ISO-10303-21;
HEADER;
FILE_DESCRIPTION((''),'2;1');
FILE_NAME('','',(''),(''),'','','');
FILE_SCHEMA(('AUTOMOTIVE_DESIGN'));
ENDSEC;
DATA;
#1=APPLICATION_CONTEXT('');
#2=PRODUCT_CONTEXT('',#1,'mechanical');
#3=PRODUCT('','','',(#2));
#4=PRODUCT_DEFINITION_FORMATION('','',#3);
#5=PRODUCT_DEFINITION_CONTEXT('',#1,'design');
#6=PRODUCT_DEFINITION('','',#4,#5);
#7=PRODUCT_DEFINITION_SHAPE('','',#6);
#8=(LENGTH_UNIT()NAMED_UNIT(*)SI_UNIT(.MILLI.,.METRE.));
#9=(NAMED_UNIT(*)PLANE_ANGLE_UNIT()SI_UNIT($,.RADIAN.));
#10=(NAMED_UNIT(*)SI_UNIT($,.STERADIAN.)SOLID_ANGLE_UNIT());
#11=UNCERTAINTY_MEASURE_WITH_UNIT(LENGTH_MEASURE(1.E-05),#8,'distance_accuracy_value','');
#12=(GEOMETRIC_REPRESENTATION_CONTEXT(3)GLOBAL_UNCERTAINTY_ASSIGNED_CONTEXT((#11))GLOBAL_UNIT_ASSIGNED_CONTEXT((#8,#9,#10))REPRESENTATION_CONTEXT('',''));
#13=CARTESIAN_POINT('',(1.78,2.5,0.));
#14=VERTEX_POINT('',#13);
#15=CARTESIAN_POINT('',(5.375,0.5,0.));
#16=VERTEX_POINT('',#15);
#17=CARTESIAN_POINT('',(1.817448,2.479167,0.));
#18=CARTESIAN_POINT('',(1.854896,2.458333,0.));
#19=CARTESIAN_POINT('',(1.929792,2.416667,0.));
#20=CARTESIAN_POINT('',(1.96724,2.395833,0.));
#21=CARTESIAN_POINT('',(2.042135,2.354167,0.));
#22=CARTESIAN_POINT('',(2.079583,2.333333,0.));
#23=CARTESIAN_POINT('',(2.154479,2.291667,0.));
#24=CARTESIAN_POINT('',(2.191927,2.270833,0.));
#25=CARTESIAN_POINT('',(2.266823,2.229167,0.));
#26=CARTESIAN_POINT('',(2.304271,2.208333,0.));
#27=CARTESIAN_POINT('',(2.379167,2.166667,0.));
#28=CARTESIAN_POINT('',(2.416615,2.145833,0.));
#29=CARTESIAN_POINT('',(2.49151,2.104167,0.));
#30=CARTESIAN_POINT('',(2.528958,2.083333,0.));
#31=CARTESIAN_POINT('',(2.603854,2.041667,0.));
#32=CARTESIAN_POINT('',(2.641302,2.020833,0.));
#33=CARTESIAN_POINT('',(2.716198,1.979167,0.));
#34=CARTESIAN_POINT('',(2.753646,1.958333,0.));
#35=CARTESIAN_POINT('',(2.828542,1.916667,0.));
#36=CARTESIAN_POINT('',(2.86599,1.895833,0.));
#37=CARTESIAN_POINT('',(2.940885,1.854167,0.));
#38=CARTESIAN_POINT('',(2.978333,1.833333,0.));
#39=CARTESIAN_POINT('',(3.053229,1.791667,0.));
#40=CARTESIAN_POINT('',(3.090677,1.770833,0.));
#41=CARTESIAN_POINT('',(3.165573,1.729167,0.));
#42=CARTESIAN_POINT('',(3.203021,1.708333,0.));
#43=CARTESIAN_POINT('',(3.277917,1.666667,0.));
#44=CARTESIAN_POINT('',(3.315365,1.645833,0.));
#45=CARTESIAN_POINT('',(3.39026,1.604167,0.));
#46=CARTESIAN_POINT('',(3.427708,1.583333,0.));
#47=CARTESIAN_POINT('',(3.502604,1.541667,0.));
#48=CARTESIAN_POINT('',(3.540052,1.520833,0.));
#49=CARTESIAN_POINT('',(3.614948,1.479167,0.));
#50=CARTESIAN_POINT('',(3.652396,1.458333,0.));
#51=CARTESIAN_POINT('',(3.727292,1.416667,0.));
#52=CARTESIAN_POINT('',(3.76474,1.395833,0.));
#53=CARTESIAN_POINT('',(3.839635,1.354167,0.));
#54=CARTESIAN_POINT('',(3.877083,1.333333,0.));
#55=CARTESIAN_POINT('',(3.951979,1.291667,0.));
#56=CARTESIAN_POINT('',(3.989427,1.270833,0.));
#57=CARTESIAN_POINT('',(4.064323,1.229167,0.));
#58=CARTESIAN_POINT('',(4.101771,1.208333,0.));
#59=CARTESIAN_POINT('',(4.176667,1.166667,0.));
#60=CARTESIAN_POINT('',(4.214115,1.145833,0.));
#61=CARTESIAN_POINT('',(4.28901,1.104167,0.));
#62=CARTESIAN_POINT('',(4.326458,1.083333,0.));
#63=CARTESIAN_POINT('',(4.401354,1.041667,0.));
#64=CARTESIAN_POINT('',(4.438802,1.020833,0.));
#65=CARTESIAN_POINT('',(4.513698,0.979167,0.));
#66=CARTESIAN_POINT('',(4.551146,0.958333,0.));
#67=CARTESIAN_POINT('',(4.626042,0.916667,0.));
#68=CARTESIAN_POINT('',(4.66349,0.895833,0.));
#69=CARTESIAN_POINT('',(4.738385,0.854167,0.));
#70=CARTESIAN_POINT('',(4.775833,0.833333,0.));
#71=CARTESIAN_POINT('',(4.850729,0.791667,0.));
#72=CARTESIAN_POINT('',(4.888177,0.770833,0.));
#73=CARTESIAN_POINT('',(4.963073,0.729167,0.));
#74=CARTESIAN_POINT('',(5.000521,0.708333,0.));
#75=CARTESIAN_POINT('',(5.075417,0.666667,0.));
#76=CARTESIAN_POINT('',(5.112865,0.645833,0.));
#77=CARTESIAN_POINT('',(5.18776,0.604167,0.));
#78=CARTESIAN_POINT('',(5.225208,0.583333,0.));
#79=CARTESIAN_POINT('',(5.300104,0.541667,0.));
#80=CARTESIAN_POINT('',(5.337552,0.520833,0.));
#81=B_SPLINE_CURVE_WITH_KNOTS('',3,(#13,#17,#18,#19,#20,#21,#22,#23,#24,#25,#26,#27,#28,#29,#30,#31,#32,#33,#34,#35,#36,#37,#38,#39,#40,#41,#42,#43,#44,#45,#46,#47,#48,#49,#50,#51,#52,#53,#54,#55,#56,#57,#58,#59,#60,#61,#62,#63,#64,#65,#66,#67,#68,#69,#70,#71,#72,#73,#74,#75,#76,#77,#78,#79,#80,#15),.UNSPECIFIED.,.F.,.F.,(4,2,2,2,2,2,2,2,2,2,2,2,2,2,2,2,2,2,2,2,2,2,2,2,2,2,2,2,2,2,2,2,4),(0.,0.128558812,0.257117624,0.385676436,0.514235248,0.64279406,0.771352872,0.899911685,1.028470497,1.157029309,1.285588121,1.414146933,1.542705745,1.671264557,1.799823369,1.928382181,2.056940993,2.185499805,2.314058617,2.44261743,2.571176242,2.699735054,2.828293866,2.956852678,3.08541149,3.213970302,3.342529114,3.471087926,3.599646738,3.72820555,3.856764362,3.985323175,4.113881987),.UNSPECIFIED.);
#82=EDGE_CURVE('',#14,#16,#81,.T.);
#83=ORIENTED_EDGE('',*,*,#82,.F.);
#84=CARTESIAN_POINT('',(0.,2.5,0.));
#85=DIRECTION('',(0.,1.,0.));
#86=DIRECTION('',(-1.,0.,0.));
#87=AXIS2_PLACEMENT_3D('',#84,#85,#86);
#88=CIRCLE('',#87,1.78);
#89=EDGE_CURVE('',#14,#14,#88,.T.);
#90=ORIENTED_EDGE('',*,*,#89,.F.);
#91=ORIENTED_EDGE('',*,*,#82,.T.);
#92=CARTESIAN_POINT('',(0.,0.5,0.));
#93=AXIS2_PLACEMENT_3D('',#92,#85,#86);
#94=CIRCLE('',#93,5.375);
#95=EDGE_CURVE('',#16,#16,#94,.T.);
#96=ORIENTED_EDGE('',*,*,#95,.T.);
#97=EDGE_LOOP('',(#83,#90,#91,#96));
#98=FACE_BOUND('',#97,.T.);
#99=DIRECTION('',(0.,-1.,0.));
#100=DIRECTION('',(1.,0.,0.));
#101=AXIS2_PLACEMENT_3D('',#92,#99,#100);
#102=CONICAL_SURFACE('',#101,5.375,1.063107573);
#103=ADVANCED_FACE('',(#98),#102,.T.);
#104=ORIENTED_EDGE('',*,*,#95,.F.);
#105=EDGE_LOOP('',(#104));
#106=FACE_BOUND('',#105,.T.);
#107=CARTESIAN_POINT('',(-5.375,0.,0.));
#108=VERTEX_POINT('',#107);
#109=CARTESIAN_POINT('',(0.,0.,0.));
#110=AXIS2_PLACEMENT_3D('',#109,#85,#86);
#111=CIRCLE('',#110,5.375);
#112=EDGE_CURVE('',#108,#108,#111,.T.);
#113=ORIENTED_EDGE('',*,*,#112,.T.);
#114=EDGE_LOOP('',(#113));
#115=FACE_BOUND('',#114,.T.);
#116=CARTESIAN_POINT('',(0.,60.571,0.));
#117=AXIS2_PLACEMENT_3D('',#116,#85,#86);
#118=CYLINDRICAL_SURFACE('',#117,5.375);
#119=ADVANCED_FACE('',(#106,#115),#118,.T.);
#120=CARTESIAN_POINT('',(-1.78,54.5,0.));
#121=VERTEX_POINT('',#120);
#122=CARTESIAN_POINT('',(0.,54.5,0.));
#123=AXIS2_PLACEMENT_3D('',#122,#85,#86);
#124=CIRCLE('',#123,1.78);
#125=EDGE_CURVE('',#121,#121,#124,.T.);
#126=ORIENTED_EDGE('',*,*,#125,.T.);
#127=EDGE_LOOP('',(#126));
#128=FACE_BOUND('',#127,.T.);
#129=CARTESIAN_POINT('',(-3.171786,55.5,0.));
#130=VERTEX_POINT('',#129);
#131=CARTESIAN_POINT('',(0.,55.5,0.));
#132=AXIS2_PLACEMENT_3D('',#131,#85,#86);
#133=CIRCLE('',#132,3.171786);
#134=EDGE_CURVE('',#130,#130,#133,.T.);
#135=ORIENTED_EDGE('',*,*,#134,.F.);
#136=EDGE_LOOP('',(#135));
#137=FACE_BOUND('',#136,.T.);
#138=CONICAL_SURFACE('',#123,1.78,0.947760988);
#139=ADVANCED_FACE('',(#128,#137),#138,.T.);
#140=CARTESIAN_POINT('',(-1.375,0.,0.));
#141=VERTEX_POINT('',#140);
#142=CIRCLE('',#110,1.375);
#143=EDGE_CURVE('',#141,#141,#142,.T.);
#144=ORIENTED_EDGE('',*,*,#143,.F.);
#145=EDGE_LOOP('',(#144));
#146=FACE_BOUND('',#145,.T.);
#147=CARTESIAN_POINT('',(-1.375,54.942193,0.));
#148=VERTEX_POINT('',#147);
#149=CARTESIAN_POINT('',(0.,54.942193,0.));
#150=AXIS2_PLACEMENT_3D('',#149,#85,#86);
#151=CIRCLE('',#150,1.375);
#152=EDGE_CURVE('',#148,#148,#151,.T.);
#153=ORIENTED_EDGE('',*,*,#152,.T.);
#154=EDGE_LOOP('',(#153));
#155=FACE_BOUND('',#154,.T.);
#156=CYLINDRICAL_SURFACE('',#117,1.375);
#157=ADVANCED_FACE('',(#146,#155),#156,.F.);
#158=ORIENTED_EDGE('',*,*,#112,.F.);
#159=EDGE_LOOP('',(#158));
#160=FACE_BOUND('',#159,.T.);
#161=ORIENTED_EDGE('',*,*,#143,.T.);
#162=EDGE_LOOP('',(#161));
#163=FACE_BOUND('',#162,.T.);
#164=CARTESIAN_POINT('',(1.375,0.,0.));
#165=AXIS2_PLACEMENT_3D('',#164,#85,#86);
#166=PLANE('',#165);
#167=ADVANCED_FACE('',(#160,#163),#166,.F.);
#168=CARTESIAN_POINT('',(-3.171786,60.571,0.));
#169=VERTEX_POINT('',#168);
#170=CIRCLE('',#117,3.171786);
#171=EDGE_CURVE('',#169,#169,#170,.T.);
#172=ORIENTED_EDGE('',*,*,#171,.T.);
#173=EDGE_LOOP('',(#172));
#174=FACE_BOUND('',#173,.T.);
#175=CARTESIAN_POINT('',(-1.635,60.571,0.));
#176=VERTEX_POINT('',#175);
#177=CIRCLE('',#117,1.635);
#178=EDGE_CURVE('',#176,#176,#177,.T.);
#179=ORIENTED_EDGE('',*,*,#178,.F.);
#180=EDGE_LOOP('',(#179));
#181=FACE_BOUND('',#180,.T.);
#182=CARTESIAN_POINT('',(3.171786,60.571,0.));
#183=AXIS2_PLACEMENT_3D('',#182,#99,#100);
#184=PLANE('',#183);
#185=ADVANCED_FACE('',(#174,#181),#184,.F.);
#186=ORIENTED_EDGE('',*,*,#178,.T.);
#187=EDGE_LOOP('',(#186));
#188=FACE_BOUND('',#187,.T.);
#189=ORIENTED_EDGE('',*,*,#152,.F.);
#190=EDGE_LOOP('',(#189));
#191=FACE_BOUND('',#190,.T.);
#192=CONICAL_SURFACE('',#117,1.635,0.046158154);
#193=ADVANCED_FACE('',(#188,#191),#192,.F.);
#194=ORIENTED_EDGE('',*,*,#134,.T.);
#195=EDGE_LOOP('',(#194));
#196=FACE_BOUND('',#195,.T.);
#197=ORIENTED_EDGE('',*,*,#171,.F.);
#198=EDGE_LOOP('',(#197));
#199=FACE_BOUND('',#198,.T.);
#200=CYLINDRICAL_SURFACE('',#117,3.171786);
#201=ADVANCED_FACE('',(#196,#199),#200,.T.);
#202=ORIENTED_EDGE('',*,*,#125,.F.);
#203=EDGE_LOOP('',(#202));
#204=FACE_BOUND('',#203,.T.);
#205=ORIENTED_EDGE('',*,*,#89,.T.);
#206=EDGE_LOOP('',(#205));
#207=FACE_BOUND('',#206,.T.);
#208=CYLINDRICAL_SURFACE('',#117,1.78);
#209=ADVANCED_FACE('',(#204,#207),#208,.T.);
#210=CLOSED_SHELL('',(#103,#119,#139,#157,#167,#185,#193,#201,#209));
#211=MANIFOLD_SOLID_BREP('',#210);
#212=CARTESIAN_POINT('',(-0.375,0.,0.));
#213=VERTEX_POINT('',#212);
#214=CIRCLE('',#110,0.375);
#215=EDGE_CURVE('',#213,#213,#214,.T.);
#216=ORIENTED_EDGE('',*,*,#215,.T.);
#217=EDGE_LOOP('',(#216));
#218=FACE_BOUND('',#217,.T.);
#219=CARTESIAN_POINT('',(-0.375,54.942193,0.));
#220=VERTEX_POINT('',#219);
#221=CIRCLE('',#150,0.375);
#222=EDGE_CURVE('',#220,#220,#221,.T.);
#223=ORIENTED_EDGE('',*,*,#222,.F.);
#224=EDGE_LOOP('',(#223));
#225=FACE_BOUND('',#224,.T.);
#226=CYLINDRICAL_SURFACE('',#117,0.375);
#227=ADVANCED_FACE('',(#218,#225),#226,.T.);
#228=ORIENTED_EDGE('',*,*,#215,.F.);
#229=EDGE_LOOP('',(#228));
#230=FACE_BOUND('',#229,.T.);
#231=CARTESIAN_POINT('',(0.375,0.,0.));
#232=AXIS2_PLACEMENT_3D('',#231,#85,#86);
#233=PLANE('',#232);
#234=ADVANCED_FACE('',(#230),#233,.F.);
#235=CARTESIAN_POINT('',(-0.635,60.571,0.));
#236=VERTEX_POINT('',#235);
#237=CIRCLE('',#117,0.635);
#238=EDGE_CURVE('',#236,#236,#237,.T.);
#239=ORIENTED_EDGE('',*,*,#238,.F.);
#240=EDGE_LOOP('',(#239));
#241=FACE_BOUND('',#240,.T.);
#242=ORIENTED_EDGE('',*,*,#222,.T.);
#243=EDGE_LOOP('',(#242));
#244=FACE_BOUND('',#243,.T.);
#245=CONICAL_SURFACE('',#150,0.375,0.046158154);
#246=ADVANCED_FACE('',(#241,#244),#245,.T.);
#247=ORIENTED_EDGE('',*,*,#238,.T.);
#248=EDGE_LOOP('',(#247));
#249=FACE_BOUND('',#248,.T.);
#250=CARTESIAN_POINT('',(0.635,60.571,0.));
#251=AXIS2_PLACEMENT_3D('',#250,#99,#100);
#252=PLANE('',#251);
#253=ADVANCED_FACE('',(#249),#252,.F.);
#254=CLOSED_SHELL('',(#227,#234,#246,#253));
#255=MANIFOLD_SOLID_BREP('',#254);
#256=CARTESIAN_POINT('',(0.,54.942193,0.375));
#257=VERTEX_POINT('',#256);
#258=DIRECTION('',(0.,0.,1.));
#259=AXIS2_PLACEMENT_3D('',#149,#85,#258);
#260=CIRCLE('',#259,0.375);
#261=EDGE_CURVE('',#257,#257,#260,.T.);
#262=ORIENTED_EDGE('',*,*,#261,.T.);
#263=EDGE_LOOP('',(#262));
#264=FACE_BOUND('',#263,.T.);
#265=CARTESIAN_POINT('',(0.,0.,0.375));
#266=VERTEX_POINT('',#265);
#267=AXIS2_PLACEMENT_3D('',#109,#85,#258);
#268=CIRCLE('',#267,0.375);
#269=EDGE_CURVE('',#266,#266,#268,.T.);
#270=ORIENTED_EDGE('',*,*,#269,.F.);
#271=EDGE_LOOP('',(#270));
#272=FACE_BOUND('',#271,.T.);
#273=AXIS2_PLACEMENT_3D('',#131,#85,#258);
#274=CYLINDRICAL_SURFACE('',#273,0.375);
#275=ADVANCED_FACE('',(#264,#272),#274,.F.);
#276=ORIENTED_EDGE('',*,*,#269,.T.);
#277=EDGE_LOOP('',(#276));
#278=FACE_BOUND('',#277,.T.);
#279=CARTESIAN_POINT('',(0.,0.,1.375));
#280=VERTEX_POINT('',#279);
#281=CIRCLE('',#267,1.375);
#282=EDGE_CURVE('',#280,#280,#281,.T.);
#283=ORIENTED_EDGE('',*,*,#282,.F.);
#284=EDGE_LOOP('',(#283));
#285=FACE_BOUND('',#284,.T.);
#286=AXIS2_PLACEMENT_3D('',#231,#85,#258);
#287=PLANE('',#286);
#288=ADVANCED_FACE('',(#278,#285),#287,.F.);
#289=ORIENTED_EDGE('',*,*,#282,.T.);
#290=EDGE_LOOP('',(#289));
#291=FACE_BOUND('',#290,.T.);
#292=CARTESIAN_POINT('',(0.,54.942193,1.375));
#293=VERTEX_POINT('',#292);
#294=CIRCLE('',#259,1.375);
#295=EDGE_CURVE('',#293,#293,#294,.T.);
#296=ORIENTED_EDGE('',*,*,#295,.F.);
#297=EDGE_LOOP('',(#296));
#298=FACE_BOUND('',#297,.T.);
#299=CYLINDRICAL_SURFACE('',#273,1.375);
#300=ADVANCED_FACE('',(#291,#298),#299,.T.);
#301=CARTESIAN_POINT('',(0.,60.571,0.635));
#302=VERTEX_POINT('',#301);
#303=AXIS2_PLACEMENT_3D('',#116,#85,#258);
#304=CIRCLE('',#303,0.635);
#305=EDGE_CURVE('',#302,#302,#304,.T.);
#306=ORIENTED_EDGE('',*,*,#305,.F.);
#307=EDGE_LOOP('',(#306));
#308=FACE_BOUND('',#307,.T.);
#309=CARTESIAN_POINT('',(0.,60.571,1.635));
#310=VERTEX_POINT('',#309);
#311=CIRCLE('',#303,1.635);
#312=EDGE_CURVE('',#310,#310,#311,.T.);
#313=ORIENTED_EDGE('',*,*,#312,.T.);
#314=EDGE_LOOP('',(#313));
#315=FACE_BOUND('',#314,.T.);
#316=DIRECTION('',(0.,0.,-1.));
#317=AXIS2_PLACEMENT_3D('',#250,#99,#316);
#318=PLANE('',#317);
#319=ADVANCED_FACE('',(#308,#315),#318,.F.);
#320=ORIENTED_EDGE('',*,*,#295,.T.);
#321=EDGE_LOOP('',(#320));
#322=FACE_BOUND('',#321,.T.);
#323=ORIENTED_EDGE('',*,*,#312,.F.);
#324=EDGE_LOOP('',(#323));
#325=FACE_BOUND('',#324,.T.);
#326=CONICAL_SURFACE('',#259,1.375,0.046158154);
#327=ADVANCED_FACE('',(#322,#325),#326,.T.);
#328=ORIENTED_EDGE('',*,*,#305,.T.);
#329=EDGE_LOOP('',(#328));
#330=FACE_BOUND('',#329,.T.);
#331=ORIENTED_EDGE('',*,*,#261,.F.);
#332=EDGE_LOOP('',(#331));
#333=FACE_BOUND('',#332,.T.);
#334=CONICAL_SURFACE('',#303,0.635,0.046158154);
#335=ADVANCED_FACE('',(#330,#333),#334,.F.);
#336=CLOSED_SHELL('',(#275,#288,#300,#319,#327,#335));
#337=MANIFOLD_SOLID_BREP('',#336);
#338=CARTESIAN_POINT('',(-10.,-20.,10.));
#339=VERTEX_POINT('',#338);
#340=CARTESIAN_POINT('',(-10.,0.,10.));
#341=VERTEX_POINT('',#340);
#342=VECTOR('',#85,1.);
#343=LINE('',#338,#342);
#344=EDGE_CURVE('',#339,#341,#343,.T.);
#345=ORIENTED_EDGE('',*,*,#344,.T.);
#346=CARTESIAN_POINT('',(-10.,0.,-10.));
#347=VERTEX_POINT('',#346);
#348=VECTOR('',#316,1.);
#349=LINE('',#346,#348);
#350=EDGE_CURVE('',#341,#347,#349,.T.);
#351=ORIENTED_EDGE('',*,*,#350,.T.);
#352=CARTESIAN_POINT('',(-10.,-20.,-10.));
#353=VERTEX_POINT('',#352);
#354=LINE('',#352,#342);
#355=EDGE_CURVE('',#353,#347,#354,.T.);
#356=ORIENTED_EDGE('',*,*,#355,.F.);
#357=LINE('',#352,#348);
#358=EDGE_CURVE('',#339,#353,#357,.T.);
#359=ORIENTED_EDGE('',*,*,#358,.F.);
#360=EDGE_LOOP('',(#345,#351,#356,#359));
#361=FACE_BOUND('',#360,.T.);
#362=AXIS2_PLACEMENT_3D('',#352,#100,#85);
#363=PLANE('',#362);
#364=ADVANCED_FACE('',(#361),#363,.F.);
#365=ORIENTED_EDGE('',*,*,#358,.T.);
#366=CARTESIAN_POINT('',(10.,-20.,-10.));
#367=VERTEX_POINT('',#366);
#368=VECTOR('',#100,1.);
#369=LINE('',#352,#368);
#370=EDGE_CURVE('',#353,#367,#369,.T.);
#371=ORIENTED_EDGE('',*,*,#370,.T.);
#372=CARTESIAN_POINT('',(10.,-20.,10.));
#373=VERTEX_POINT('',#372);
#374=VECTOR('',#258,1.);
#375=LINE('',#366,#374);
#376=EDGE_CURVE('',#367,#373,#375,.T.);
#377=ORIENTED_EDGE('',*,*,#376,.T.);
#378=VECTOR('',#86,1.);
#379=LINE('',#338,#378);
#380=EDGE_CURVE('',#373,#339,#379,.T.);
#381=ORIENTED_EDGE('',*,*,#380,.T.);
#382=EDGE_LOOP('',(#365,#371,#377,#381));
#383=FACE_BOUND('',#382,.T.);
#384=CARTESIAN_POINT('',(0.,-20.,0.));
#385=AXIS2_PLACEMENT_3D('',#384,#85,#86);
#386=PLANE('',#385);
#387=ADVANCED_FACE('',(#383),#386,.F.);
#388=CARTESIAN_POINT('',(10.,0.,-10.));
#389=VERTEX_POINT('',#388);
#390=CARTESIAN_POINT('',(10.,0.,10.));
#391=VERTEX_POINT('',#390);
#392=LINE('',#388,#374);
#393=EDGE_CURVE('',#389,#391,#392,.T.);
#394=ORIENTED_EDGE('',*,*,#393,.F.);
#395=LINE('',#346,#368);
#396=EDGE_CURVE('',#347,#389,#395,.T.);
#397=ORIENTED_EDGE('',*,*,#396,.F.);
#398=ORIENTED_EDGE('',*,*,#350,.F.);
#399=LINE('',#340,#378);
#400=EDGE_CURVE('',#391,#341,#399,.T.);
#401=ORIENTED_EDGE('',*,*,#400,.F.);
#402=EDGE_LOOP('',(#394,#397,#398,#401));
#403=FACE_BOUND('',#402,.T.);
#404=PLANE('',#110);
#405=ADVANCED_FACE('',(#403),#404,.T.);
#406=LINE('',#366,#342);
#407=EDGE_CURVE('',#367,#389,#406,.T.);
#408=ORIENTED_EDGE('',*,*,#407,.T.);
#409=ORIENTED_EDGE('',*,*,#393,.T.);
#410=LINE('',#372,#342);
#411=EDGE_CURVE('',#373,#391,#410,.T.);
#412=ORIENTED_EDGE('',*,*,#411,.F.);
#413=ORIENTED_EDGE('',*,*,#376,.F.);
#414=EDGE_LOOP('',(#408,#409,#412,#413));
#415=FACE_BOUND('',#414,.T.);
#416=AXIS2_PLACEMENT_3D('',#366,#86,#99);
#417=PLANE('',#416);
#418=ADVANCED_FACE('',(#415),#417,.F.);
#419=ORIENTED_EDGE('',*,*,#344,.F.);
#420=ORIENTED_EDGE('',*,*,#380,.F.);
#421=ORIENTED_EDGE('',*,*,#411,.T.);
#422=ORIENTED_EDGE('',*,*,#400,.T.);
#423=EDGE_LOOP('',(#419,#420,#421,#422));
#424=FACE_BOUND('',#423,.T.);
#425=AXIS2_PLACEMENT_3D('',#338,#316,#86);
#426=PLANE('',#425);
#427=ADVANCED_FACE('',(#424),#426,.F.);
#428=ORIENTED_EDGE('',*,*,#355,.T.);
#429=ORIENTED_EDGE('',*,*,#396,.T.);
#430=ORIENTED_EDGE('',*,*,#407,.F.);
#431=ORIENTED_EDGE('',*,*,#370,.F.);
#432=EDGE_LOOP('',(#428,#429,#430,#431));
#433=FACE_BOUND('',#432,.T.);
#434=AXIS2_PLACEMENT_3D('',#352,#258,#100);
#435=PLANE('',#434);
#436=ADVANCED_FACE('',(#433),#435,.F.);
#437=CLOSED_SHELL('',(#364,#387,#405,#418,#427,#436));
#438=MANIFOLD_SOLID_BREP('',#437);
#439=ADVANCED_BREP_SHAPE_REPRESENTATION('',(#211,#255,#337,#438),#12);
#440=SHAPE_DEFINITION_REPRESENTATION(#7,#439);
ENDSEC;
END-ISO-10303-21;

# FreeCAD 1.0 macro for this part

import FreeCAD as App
import Part
import Sketcher

V = App.Vector
Q = App.Units.Quantity


def add_polygon(sketch, points):
    """Adds a closed chain of lines whose ends are joined by coincident constraints."""
    first, n = sketch.GeometryCount, len(points)
    for a, b in zip(points, points[1:] + points[:1]):
        sketch.addGeometry(Part.LineSegment(App.Vector(*a, 0), App.Vector(*b, 0)), False)
    for i in range(n):
        sketch.addConstraint(Sketcher.Constraint("Coincident", first + i, 2, first + (i + 1) % n, 1))

doc = App.newDocument("Part")
body = doc.addObject("PartDesign::Body", "Body")
body.AllowCompound = True

sketch1 = body.newObject("Sketcher::SketchObject", "Sketch")
sketch1.AttachmentSupport = (doc.getObject("XY_Plane"), [""])
sketch1.MapMode = "FlatFace"
add_polygon(sketch1, [(5.38, 0), (5.38, 0.5), (1.78, 2.5), (1.78, 54.5), (3.17, 55.5), (3.17, 60.57), (1.64, 60.57), (1.38, 54.94), (1.38, 0)])
add_polygon(sketch1, [(0.38, 0), (0.38, 54.94), (0.64, 60.57), (0, 60.57), (0, 0)])
sketch1.addConstraint([
    Sketcher.Constraint("Vertical", 0),
    Sketcher.Constraint("Vertical", 2),
    Sketcher.Constraint("Vertical", 4),
    Sketcher.Constraint("Horizontal", 5),
    Sketcher.Constraint("Vertical", 7),
    Sketcher.Constraint("Horizontal", 8),
    Sketcher.Constraint("Vertical", 9),
    Sketcher.Constraint("Horizontal", 11),
    Sketcher.Constraint("Vertical", 12),
    Sketcher.Constraint("Horizontal", 13),
    Sketcher.Constraint("Coincident", 12, 2, -1, 1),
    Sketcher.Constraint("PointOnObject", 7, 2, -1),
    Sketcher.Constraint("Parallel", 6, 10),
    Sketcher.Constraint("Horizontal", 6, 2, 9, 2),
    Sketcher.Constraint("Horizontal", 5, 2, 10, 2),
    Sketcher.Constraint("DistanceX", 8, 1, 8, 2, Q("4 mm")),
    Sketcher.Constraint("DistanceY", 2, 1, 2, 2, Q("52 mm")),
    Sketcher.Constraint("DistanceY", 0, 1, 0, 2, Q("0.5 mm")),
    Sketcher.Constraint("DistanceY", 0, 2, 1, 2, Q("2 mm")),
    Sketcher.Constraint("DistanceY", 2, 2, 3, 2, Q("1 mm")),
    Sketcher.Constraint("DistanceX", 9, 2, 6, 2, Q("1 mm")),
    Sketcher.Constraint("DistanceX", 11, 2, 11, 1, Q("0.635 mm")),
    Sketcher.Constraint("DistanceX", 13, 1, 13, 2, Q("0.375 mm")),
    Sketcher.Constraint("DistanceY", 4, 1, 4, 2, Q("5.071 mm")),
    Sketcher.Constraint("DistanceX", -1, 1, 1, 2, Q("1.78 mm")),
    Sketcher.Constraint("Distance", 6, Q("5.634808 mm")),
    Sketcher.Constraint("DistanceX", 5, 2, 5, 1, Q("1.536786 mm")),
])
revolution = body.newObject("PartDesign::Revolution", "Revolution")
revolution.Profile = sketch1
revolution.ReferenceAxis = (sketch1, ["V_Axis"])
revolution.Angle = 360
body2 = doc.addObject("PartDesign::Body", "Body001")

sketch2 = body2.newObject("Sketcher::SketchObject", "Sketch001")
sketch2.AttachmentSupport = (doc.getObject("XY_Plane001"), [""])
sketch2.MapMode = "FlatFace"
add_polygon(sketch2, [(0.6, 60.6), (0.4, 54.9), (0.4, 0), (1.4, 0), (1.4, 54.9), (1.6, 60.6)])
sketch2.addConstraint([
    Sketcher.Constraint("Vertical", 1),
    Sketcher.Constraint("Horizontal", 2),
    Sketcher.Constraint("Vertical", 3),
    Sketcher.Constraint("Horizontal", 5),
    Sketcher.Constraint("PointOnObject", 1, 2, -1),
    Sketcher.Constraint("Parallel", 0, 4),
    Sketcher.Constraint("Horizontal", 0, 2, 3, 2),
    Sketcher.Constraint("DistanceX", 2, 1, 2, 2, Q("1 mm")),
    Sketcher.Constraint("DistanceX", 3, 2, 4, 2, Q("0.26 mm")),
    Sketcher.Constraint("DistanceX", -1, 1, 0, 2, Q("0.375 mm")),
    Sketcher.Constraint("DistanceY", -1, 1, 4, 2, Q("60.571 mm")),
    Sketcher.Constraint("Distance", 0, Q("5.634808 mm")),
])
revolution2 = body2.newObject("PartDesign::Revolution", "Revolution001")
revolution2.Profile = sketch2
revolution2.ReferenceAxis = (sketch2, ["V_Axis"])
revolution2.Angle = 360
body3 = doc.addObject("PartDesign::Body", "Body002")

sketch3 = body3.newObject("Sketcher::SketchObject", "Sketch002")
sketch3.AttachmentSupport = (doc.getObject("XZ_Plane002"), [""])
sketch3.MapMode = "FlatFace"
add_polygon(sketch3, [(-10, 10), (-10, -10), (10, -10), (10, 10)])
sketch3.addConstraint([
    Sketcher.Constraint("Vertical", 0),
    Sketcher.Constraint("Horizontal", 1),
    Sketcher.Constraint("Vertical", 2),
    Sketcher.Constraint("Horizontal", 3),
    Sketcher.Constraint("Symmetric", 0, 2, 2, 2, -1, 1),
    Sketcher.Constraint("Equal", 3, 0),
    Sketcher.Constraint("DistanceX", 1, 1, 1, 2, Q("20 mm")),
])
pad1 = body3.newObject("PartDesign::Pad", "Pad")
pad1.Profile = sketch3
pad1.Length = 20

doc.recompute()
